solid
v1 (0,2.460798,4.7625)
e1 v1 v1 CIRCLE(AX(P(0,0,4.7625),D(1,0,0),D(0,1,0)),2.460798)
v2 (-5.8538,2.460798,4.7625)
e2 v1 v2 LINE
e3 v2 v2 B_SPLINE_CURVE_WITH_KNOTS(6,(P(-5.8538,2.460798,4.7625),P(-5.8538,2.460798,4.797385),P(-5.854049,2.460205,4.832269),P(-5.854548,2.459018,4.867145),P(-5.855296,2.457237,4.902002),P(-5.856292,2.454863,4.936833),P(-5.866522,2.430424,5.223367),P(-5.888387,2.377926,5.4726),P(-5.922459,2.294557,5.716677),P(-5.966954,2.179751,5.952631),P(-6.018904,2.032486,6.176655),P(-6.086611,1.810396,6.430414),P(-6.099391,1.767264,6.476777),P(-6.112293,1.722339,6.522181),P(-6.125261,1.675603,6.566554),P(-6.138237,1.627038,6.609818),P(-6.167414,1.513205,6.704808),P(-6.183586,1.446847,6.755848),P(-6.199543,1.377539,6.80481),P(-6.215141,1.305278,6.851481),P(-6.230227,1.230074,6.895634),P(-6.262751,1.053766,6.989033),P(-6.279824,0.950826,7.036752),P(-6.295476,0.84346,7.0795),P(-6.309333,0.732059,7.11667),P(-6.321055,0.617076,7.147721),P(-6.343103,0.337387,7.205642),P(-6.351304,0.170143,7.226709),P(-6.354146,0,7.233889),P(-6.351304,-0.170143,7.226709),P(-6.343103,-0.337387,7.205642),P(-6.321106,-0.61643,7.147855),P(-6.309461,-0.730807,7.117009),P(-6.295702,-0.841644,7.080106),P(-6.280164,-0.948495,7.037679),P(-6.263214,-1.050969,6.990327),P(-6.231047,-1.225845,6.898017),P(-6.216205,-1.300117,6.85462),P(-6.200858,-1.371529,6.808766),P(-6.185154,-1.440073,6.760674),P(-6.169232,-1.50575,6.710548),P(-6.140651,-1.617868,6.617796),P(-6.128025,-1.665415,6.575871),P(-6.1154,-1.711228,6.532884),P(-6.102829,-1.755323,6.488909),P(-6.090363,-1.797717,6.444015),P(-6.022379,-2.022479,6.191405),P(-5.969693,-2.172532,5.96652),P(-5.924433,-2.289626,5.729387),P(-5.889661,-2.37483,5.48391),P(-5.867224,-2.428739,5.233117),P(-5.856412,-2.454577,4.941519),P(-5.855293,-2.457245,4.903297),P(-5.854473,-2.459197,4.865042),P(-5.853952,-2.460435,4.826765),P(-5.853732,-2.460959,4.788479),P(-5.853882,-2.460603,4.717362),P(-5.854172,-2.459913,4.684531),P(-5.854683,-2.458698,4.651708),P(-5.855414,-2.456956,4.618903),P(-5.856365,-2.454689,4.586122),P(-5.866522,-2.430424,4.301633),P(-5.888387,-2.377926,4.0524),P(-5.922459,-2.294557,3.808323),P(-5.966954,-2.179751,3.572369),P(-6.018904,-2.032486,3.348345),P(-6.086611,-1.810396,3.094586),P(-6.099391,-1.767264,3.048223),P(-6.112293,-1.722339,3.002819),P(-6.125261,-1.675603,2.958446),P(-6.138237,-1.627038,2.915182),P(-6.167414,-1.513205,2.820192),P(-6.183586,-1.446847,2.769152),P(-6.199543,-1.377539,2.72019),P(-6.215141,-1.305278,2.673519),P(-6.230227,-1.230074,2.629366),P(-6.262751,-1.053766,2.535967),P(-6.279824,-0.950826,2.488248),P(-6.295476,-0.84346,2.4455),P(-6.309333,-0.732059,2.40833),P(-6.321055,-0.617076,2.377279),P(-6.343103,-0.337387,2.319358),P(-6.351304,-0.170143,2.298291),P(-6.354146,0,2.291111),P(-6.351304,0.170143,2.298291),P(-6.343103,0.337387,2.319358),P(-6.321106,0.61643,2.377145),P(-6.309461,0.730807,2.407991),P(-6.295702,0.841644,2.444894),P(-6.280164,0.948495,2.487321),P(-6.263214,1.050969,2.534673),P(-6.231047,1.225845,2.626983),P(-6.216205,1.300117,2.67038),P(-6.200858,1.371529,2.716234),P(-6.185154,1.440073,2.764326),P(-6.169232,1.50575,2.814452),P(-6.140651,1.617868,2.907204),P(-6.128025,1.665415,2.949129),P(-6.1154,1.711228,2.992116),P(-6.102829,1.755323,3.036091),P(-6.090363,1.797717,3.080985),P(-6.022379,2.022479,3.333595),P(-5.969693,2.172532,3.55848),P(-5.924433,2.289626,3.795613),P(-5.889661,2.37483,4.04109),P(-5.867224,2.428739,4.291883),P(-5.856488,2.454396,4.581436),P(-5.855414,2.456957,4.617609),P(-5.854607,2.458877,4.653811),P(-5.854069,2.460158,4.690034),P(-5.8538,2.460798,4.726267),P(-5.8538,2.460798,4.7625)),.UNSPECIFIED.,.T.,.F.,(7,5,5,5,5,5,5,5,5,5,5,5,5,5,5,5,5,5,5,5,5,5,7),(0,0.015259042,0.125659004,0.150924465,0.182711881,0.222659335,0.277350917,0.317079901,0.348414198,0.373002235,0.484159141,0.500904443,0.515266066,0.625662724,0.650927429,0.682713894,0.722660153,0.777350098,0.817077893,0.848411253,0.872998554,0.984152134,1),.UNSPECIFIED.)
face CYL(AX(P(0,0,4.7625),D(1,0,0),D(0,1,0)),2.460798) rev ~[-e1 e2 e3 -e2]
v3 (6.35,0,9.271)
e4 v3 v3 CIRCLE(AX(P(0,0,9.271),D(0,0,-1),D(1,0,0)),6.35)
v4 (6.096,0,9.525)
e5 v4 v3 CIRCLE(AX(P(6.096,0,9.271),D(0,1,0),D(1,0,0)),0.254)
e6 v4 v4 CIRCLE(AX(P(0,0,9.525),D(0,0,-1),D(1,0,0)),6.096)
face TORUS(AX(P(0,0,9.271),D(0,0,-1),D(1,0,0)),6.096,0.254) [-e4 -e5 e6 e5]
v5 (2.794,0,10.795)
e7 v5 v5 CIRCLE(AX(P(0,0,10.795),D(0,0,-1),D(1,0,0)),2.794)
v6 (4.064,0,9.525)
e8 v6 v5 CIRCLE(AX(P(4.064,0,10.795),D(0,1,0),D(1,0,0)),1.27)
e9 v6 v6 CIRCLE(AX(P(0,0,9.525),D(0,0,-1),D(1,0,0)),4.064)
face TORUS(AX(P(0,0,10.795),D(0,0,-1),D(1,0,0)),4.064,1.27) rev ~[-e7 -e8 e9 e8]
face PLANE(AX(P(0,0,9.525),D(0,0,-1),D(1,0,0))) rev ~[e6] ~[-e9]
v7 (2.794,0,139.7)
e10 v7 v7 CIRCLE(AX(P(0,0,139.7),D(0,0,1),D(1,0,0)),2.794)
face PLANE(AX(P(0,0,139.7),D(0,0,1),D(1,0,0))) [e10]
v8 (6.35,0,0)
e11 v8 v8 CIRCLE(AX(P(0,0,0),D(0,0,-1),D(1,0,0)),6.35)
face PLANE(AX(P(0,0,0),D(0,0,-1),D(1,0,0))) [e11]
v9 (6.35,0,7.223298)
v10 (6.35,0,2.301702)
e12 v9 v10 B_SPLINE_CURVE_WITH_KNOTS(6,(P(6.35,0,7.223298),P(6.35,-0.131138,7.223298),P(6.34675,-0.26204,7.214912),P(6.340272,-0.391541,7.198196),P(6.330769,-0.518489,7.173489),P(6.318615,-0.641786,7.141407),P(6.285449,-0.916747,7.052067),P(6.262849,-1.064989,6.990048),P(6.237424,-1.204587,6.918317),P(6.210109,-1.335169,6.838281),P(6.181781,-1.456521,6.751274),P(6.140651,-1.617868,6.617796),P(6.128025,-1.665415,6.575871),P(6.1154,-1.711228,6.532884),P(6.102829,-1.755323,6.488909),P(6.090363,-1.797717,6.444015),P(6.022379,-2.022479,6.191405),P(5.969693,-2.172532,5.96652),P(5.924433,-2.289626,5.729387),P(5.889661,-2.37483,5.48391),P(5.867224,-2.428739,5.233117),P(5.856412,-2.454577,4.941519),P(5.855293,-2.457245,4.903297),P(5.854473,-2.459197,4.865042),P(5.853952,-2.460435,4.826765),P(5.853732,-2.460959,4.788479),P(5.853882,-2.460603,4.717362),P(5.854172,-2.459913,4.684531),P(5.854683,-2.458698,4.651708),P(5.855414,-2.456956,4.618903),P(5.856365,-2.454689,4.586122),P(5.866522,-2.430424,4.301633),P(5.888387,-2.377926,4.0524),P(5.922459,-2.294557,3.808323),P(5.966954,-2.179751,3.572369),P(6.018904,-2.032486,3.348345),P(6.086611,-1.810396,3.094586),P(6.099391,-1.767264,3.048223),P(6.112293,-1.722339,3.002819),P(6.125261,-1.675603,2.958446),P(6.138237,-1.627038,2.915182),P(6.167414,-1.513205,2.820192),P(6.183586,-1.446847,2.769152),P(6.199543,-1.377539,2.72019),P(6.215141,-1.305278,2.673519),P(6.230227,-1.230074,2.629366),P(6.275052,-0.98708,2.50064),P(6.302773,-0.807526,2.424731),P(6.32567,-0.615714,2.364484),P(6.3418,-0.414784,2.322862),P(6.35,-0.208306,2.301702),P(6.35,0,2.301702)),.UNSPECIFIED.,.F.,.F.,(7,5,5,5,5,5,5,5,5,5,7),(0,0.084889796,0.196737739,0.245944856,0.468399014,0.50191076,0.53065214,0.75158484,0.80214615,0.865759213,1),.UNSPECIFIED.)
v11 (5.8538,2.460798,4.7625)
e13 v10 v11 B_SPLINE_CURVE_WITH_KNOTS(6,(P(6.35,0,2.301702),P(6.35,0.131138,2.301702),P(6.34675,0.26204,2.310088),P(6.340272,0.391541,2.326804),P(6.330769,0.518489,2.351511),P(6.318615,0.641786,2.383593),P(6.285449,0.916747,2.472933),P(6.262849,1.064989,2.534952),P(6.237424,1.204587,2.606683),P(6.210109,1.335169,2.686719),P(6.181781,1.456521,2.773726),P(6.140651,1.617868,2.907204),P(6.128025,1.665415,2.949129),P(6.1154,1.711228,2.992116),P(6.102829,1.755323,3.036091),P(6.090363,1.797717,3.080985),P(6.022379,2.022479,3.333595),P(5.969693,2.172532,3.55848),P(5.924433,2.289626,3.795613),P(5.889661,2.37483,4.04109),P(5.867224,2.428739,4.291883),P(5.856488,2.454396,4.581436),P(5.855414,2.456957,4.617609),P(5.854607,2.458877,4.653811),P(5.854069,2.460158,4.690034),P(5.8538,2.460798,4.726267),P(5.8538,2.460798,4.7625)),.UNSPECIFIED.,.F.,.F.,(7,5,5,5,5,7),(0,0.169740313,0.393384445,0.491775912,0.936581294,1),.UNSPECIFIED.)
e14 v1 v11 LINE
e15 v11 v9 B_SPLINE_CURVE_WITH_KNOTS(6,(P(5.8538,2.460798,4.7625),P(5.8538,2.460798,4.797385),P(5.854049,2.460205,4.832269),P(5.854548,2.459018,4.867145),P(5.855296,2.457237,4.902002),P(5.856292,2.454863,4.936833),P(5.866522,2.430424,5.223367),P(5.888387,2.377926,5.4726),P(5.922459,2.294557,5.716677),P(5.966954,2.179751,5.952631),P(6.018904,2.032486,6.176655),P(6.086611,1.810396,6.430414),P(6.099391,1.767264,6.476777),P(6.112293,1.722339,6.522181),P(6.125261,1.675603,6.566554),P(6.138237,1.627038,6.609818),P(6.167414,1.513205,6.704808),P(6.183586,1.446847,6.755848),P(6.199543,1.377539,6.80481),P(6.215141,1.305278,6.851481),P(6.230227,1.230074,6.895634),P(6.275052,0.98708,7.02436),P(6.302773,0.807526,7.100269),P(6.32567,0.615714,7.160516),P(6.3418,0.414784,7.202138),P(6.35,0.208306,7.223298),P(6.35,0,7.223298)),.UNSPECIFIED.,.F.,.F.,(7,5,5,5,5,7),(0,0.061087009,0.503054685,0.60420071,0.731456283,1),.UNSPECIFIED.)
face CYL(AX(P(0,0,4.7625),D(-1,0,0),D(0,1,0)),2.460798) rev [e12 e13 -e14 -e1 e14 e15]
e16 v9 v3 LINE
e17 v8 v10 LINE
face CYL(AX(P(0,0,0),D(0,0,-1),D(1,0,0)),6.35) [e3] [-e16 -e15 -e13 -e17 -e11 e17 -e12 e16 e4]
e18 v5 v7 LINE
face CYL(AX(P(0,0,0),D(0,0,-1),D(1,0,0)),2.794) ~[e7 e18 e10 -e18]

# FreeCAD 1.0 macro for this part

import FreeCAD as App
import Part
import Sketcher
from FreeCAD import Vector
Q = App.Units.Quantity


def edges_at(feature, points):
    """Names of the edges that pass closest to the given points."""
    edges = feature.Shape.Edges
    near = lambda p: min(range(len(edges)), key=lambda i: edges[i].distToShape(Part.Vertex(*p))[0])
    return sorted({f"Edge{near(p) + 1}" for p in points})

doc = App.newDocument("Part")
body = doc.addObject("PartDesign::Body", "Body")

# Sketch on XY plane
sketch1 = doc.addObject("Sketcher::SketchObject", "Sketch")
body.addObject(sketch1)
sketch1.AttachmentSupport = (doc.XY_Plane, [""])
sketch1.MapMode = "FlatFace"
sketch1.addGeometry(Part.Circle(Vector(0, 0, 0), Vector(0, 0, 1), 2.8), False)
sketch1.addConstraint([
    Sketcher.Constraint("Coincident", 0, 3, -1, 1),
    Sketcher.Constraint("Diameter", 0, Q("0.22 in")),
])
pad1 = doc.addObject("PartDesign::Pad", "Pad")
body.addObject(pad1)
pad1.Profile = sketch1
pad1.Length = Q("5.5 in")

# Sketch on XY plane
sketch2 = doc.addObject("Sketcher::SketchObject", "Sketch001")
body.addObject(sketch2)
sketch2.AttachmentSupport = (doc.XY_Plane, [""])
sketch2.MapMode = "FlatFace"
sketch2.addGeometry(Part.Circle(Vector(0, 0, 0), Vector(0, 0, 1), 6), False)
sketch2.addConstraint([
    Sketcher.Constraint("Coincident", 0, 3, -1, 1),
    Sketcher.Constraint("Diameter", 0, Q("0.5 in")),
])
pad2 = doc.addObject("PartDesign::Pad", "Pad001")
body.addObject(pad2)
pad2.Profile = sketch2
pad2.Length = Q("0.375 in")
doc.recompute()

fillet = doc.addObject("PartDesign::Fillet", "Fillet")
body.addObject(fillet)
fillet.Base = (pad2, edges_at(pad2, [(-2.794, 0, 9.525)]))
fillet.Radius = Q("0.05 in")
doc.recompute()

fillet2 = doc.addObject("PartDesign::Fillet", "Fillet001")
body.addObject(fillet2)
fillet2.Base = (fillet, edges_at(fillet, [(-6.35, 0, 9.525)]))
fillet2.Radius = Q("0.01 in")

# Sketch on YZ plane
sketch3 = doc.addObject("Sketcher::SketchObject", "Sketch002")
body.addObject(sketch3)
sketch3.AttachmentSupport = (doc.YZ_Plane, [""])
sketch3.MapMode = "FlatFace"
sketch3.addGeometry(Part.Circle(Vector(0, 4.8, 0), Vector(0, 0, 1), 2.5), False)
sketch3.addConstraint([
    Sketcher.Constraint("PointOnObject", 0, 3, -2),
    Sketcher.Constraint("DistanceY", -1, 1, 0, 3, Q("0.1875 in")),
    Sketcher.Constraint("Diameter", 0, Q("4.921596 mm")),
])
pocket1 = doc.addObject("PartDesign::Pocket", "Pocket")
body.addObject(pocket1)
pocket1.Profile = sketch3
pocket1.Length = Q("1 in")

# Sketch on YZ plane
sketch4 = doc.addObject("Sketcher::SketchObject", "Sketch003")
body.addObject(sketch4)
sketch4.AttachmentSupport = (doc.YZ_Plane, [""])
sketch4.MapMode = "FlatFace"
sketch4.addGeometry(Part.Circle(Vector(0, 4.8, 0), Vector(0, 0, 1), 2.5), False)
sketch4.addConstraint([
    Sketcher.Constraint("PointOnObject", 0, 3, -2),
    Sketcher.Constraint("DistanceY", -1, 1, 0, 3, Q("0.1875 in")),
    Sketcher.Constraint("Diameter", 0, Q("4.921596 mm")),
])
pocket2 = doc.addObject("PartDesign::Pocket", "Pocket001")
body.addObject(pocket2)
pocket2.Profile = sketch4
pocket2.Length = Q("1 in")
pocket2.Reversed = True

doc.recompute()
